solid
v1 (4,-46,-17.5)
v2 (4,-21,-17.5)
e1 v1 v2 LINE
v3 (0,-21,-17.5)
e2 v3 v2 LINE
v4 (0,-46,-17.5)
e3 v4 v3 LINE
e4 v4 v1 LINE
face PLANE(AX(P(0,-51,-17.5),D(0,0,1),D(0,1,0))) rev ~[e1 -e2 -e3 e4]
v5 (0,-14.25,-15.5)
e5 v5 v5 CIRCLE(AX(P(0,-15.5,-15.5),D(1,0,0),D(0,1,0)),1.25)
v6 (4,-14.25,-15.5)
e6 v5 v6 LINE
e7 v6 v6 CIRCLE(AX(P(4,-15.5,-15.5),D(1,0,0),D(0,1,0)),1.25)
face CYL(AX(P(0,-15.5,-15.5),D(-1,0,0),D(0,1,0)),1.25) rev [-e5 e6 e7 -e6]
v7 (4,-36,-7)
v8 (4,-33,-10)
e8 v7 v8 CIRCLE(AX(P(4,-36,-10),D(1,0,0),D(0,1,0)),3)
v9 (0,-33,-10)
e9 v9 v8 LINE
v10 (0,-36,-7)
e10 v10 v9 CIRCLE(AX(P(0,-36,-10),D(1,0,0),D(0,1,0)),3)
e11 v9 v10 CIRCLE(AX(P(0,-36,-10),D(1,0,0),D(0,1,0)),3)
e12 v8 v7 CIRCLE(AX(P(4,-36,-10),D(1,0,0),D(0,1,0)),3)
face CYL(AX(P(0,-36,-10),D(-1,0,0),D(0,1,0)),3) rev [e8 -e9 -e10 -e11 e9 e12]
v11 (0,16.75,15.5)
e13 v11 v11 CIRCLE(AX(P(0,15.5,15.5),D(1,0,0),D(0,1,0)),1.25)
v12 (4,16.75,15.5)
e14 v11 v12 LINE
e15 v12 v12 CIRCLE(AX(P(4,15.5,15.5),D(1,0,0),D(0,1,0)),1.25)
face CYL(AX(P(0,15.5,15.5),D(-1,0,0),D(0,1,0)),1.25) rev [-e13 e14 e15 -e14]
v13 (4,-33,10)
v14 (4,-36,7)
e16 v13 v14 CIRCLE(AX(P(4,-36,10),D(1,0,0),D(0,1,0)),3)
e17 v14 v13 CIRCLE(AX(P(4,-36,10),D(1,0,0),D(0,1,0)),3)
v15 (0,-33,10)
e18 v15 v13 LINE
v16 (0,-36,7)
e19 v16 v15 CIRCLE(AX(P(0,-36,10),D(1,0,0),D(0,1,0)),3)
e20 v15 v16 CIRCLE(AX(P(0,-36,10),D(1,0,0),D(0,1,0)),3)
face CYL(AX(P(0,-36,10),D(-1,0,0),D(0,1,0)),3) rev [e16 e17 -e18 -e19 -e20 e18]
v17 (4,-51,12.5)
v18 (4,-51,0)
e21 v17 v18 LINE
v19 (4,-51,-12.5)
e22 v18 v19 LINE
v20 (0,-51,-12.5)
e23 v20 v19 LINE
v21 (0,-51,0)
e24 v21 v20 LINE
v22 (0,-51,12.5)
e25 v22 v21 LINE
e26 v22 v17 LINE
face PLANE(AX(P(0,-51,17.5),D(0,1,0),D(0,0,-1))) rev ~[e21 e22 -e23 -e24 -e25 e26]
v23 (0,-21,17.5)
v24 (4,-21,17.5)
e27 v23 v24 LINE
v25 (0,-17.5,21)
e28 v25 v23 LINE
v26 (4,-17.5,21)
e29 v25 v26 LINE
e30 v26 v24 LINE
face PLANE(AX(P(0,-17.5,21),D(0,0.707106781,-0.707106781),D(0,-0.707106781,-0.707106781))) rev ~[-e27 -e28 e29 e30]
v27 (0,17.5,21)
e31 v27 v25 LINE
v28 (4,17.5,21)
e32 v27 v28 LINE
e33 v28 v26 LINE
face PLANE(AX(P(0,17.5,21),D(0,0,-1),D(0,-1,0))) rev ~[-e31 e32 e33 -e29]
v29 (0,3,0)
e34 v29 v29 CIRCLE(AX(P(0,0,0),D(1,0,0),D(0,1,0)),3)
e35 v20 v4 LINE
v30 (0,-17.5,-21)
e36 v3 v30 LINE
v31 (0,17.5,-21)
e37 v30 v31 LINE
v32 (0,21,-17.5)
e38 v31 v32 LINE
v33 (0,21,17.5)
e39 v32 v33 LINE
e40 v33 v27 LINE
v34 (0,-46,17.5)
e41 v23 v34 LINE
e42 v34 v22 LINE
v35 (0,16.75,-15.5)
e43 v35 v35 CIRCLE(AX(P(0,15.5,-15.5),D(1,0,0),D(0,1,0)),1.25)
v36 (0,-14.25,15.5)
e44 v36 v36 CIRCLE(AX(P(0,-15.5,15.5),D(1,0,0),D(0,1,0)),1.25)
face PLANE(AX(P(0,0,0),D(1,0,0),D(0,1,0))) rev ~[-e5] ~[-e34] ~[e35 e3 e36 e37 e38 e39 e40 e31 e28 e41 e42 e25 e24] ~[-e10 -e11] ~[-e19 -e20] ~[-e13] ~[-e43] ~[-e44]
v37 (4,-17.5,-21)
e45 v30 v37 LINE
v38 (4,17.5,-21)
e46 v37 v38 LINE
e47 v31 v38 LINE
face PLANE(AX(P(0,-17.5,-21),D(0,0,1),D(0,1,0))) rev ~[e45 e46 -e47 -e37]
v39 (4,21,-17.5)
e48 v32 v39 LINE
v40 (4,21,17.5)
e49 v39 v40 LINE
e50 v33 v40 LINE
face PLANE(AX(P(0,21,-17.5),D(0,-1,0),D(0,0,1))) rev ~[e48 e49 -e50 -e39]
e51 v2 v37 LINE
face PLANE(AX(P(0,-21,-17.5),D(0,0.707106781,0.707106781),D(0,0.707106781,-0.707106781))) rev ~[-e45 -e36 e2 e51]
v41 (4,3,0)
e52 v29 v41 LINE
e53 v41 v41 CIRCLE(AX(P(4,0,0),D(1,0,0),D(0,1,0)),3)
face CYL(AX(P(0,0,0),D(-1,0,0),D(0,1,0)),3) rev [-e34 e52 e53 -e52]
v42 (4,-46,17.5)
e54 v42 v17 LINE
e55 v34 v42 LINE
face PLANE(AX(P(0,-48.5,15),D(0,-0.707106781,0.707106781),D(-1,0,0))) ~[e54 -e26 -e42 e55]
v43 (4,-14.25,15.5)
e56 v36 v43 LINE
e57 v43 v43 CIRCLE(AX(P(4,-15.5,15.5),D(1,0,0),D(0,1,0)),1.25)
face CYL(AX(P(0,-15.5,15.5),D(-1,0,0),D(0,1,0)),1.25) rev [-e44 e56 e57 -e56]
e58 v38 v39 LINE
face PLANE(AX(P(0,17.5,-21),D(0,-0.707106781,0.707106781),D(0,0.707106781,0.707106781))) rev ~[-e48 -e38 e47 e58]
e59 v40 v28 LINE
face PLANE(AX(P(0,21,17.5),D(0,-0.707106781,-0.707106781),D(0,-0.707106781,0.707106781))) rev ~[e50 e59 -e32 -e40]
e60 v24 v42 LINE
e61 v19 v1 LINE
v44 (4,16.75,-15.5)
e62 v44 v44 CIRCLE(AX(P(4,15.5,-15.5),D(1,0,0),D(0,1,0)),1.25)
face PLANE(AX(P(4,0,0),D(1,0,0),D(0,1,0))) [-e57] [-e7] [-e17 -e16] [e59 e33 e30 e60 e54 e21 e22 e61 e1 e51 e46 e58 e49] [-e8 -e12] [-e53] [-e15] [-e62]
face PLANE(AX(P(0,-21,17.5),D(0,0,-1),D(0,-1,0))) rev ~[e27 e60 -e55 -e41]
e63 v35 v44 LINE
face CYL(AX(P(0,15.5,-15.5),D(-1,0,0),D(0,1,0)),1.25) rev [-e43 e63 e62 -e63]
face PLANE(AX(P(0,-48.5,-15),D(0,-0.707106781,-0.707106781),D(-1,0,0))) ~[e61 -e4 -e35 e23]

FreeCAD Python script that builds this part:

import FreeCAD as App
import Part
import Sketcher
from FreeCAD import Vector


def edges_at(feature, points):
    """Names of the edges that pass closest to the given points."""
    edges = feature.Shape.Edges
    near = lambda p: min(range(len(edges)), key=lambda i: edges[i].distToShape(Part.Vertex(*p))[0])
    return sorted({f"Edge{near(p) + 1}" for p in points})

doc = App.newDocument("Part")
body = doc.addObject("PartDesign::Body", "Body")

sketch1 = body.newObject("Sketcher::SketchObject", "Sketch")
sketch1.AttachmentSupport = (doc.getObject("YZ_Plane"), [""])
sketch1.MapMode = "FlatFace"
sketch1.addGeometry([
    Part.LineSegment(Vector(17.5, 21, 0), Vector(-17.5, 21, 0)),
    Part.LineSegment(Vector(-17.5, 21, 0), Vector(-21, 17.5, 0)),
    Part.LineSegment(Vector(-21, 17.5, 0), Vector(-51, 17.5, 0)),
    Part.LineSegment(Vector(-51, 17.5, 0), Vector(-51, 0, 0)),
    Part.LineSegment(Vector(-51, 0, 0), Vector(-51, -17.5, 0)),
    Part.LineSegment(Vector(-51, -17.5, 0), Vector(-21, -17.5, 0)),
    Part.LineSegment(Vector(-21, -17.5, 0), Vector(-17.5, -21, 0)),
    Part.LineSegment(Vector(-17.5, -21, 0), Vector(17.5, -21, 0)),
    Part.LineSegment(Vector(17.5, -21, 0), Vector(21, -17.5, 0)),
    Part.LineSegment(Vector(21, -17.5, 0), Vector(21, 17.5, 0)),
    Part.LineSegment(Vector(21, 17.5, 0), Vector(17.5, 21, 0)),
    Part.Circle(Vector(-15.5, -15.5, 0), Vector(0, 0, 1), 1.2),
    Part.Circle(Vector(15.5, -15.5, 0), Vector(0, 0, 1), 1.2),
    Part.Circle(Vector(-15.5, 15.5, 0), Vector(0, 0, 1), 1.2),
    Part.Circle(Vector(15.5, 15.5, 0), Vector(0, 0, 1), 1.2),
    Part.Circle(Vector(-36, -10, 0), Vector(0, 0, 1), 3),
    Part.Circle(Vector(-36, 10, 0), Vector(0, 0, 1), 3),
    Part.Circle(Vector(0, 0, 0), Vector(0, 0, 1), 3),
], False)
sketch1.addConstraint([
    Sketcher.Constraint("Coincident", 0, 2, 1, 1),
    Sketcher.Constraint("Coincident", 1, 2, 2, 1),
    Sketcher.Constraint("Coincident", 2, 2, 3, 1),
    Sketcher.Constraint("Coincident", 3, 2, 4, 1),
    Sketcher.Constraint("Coincident", 4, 2, 5, 1),
    Sketcher.Constraint("Coincident", 5, 2, 6, 1),
    Sketcher.Constraint("Coincident", 6, 2, 7, 1),
    Sketcher.Constraint("Coincident", 7, 2, 8, 1),
    Sketcher.Constraint("Coincident", 8, 2, 9, 1),
    Sketcher.Constraint("Coincident", 9, 2, 10, 1),
    Sketcher.Constraint("Coincident", 10, 2, 0, 1),
    Sketcher.Constraint("Horizontal", 0),
    Sketcher.Constraint("Horizontal", 2),
    Sketcher.Constraint("Vertical", 3),
    Sketcher.Constraint("Vertical", 4),
    Sketcher.Constraint("Horizontal", 5),
    Sketcher.Constraint("Horizontal", 7),
    Sketcher.Constraint("Vertical", 9),
    Sketcher.Constraint("Coincident", 17, 3, -1, 1),
    Sketcher.Constraint("Equal", 11, 12),
    Sketcher.Constraint("Equal", 12, 13),
    Sketcher.Constraint("Equal", 13, 14),
    Sketcher.Constraint("Equal", 15, 16),
    Sketcher.Constraint("Equal", 16, 17),
    Sketcher.Constraint("Symmetric", 12, 3, 13, 3, -1, 1),
    Sketcher.Constraint("Symmetric", 11, 3, 14, 3, -1, 1),
    Sketcher.Constraint("Symmetric", 0, 2, 7, 2, -1, 1),
    Sketcher.Constraint("Symmetric", 1, 2, 8, 2, -1, 1),
    Sketcher.Constraint("Symmetric", 5, 2, 9, 2, -1, 1),
    Sketcher.Constraint("Symmetric", 11, 3, 12, 3, -2),
    Sketcher.Constraint("Symmetric", 15, 3, 16, 3, -1),
    Sketcher.Constraint("PointOnObject", 3, 2, -1),
    Sketcher.Constraint("Perpendicular", 1, 6),
    Sketcher.Constraint("Perpendicular", 8, 10),
    Sketcher.Constraint("Horizontal", 5, 2, 8, 2),
    Sketcher.Constraint("Vertical", 0, 2, 6, 2),
    Sketcher.Constraint("Equal", 7, 9),
    Sketcher.Constraint("Diameter", 15, 6.0),
    Sketcher.Constraint("DistanceX", 2, 2, 2, 1, 30.0),
    Sketcher.Constraint("DistanceY", 15, 3, -1, 1, 10.0),
    Sketcher.Constraint("DistanceX", 16, 3, 1, 2, 15.0),
    Sketcher.Constraint("Diameter", 11, 2.5),
    Sketcher.Constraint("DistanceX", 0, 2, 0, 1, 35.0),
    Sketcher.Constraint("DistanceX", 15, 3, -1, 1, 36.0),
    Sketcher.Constraint("DistanceX", 11, 3, 12, 3, 31.0),
    Sketcher.Constraint("DistanceY", 11, 3, 13, 3, 31.0),
])
pad1 = body.newObject("PartDesign::Pad", "Pad")
pad1.Profile = sketch1
pad1.Length = 4
doc.recompute()

chamfer = body.newObject("PartDesign::Chamfer", "Chamfer")
chamfer.Base = (pad1, edges_at(pad1, [(2, -51, 17.5), (2, -51, -17.5)]))
chamfer.Size = 5

doc.recompute()
